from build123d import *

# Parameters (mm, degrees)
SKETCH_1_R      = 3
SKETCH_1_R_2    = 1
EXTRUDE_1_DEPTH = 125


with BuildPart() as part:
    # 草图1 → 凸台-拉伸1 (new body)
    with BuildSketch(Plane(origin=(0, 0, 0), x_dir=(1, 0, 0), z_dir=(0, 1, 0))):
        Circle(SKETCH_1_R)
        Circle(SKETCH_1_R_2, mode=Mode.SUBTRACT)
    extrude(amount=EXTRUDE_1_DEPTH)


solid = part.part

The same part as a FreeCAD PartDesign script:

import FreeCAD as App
import Part
import Sketcher
from FreeCAD import Vector
Q = App.Units.Quantity

doc = App.newDocument("Part")
body = doc.addObject("PartDesign::Body", "Body")

# Sketch on XZ plane
sketch1 = doc.addObject("Sketcher::SketchObject", "Sketch")
body.addObject(sketch1)
sketch1.AttachmentSupport = (doc.XZ_Plane, [""])
sketch1.MapMode = "FlatFace"
sketch1.addGeometry([
    Part.Circle(Vector(0, 0, 0), Vector(0, 0, 1), 3),
    Part.Circle(Vector(0, 0, 0), Vector(0, 0, 1), 1),
], False)
sketch1.addConstraint([
    Sketcher.Constraint("Coincident", 0, 3, -1, 1),
    Sketcher.Constraint("Coincident", 1, 3, -1, 1),
    Sketcher.Constraint("Diameter", 0, Q("6 mm")),
    Sketcher.Constraint("Diameter", 1, Q("2 mm")),
])
pad1 = doc.addObject("PartDesign::Pad", "Pad")
body.addObject(pad1)
pad1.Profile = sketch1
pad1.Length = 125
pad1.Reversed = True

doc.recompute()
